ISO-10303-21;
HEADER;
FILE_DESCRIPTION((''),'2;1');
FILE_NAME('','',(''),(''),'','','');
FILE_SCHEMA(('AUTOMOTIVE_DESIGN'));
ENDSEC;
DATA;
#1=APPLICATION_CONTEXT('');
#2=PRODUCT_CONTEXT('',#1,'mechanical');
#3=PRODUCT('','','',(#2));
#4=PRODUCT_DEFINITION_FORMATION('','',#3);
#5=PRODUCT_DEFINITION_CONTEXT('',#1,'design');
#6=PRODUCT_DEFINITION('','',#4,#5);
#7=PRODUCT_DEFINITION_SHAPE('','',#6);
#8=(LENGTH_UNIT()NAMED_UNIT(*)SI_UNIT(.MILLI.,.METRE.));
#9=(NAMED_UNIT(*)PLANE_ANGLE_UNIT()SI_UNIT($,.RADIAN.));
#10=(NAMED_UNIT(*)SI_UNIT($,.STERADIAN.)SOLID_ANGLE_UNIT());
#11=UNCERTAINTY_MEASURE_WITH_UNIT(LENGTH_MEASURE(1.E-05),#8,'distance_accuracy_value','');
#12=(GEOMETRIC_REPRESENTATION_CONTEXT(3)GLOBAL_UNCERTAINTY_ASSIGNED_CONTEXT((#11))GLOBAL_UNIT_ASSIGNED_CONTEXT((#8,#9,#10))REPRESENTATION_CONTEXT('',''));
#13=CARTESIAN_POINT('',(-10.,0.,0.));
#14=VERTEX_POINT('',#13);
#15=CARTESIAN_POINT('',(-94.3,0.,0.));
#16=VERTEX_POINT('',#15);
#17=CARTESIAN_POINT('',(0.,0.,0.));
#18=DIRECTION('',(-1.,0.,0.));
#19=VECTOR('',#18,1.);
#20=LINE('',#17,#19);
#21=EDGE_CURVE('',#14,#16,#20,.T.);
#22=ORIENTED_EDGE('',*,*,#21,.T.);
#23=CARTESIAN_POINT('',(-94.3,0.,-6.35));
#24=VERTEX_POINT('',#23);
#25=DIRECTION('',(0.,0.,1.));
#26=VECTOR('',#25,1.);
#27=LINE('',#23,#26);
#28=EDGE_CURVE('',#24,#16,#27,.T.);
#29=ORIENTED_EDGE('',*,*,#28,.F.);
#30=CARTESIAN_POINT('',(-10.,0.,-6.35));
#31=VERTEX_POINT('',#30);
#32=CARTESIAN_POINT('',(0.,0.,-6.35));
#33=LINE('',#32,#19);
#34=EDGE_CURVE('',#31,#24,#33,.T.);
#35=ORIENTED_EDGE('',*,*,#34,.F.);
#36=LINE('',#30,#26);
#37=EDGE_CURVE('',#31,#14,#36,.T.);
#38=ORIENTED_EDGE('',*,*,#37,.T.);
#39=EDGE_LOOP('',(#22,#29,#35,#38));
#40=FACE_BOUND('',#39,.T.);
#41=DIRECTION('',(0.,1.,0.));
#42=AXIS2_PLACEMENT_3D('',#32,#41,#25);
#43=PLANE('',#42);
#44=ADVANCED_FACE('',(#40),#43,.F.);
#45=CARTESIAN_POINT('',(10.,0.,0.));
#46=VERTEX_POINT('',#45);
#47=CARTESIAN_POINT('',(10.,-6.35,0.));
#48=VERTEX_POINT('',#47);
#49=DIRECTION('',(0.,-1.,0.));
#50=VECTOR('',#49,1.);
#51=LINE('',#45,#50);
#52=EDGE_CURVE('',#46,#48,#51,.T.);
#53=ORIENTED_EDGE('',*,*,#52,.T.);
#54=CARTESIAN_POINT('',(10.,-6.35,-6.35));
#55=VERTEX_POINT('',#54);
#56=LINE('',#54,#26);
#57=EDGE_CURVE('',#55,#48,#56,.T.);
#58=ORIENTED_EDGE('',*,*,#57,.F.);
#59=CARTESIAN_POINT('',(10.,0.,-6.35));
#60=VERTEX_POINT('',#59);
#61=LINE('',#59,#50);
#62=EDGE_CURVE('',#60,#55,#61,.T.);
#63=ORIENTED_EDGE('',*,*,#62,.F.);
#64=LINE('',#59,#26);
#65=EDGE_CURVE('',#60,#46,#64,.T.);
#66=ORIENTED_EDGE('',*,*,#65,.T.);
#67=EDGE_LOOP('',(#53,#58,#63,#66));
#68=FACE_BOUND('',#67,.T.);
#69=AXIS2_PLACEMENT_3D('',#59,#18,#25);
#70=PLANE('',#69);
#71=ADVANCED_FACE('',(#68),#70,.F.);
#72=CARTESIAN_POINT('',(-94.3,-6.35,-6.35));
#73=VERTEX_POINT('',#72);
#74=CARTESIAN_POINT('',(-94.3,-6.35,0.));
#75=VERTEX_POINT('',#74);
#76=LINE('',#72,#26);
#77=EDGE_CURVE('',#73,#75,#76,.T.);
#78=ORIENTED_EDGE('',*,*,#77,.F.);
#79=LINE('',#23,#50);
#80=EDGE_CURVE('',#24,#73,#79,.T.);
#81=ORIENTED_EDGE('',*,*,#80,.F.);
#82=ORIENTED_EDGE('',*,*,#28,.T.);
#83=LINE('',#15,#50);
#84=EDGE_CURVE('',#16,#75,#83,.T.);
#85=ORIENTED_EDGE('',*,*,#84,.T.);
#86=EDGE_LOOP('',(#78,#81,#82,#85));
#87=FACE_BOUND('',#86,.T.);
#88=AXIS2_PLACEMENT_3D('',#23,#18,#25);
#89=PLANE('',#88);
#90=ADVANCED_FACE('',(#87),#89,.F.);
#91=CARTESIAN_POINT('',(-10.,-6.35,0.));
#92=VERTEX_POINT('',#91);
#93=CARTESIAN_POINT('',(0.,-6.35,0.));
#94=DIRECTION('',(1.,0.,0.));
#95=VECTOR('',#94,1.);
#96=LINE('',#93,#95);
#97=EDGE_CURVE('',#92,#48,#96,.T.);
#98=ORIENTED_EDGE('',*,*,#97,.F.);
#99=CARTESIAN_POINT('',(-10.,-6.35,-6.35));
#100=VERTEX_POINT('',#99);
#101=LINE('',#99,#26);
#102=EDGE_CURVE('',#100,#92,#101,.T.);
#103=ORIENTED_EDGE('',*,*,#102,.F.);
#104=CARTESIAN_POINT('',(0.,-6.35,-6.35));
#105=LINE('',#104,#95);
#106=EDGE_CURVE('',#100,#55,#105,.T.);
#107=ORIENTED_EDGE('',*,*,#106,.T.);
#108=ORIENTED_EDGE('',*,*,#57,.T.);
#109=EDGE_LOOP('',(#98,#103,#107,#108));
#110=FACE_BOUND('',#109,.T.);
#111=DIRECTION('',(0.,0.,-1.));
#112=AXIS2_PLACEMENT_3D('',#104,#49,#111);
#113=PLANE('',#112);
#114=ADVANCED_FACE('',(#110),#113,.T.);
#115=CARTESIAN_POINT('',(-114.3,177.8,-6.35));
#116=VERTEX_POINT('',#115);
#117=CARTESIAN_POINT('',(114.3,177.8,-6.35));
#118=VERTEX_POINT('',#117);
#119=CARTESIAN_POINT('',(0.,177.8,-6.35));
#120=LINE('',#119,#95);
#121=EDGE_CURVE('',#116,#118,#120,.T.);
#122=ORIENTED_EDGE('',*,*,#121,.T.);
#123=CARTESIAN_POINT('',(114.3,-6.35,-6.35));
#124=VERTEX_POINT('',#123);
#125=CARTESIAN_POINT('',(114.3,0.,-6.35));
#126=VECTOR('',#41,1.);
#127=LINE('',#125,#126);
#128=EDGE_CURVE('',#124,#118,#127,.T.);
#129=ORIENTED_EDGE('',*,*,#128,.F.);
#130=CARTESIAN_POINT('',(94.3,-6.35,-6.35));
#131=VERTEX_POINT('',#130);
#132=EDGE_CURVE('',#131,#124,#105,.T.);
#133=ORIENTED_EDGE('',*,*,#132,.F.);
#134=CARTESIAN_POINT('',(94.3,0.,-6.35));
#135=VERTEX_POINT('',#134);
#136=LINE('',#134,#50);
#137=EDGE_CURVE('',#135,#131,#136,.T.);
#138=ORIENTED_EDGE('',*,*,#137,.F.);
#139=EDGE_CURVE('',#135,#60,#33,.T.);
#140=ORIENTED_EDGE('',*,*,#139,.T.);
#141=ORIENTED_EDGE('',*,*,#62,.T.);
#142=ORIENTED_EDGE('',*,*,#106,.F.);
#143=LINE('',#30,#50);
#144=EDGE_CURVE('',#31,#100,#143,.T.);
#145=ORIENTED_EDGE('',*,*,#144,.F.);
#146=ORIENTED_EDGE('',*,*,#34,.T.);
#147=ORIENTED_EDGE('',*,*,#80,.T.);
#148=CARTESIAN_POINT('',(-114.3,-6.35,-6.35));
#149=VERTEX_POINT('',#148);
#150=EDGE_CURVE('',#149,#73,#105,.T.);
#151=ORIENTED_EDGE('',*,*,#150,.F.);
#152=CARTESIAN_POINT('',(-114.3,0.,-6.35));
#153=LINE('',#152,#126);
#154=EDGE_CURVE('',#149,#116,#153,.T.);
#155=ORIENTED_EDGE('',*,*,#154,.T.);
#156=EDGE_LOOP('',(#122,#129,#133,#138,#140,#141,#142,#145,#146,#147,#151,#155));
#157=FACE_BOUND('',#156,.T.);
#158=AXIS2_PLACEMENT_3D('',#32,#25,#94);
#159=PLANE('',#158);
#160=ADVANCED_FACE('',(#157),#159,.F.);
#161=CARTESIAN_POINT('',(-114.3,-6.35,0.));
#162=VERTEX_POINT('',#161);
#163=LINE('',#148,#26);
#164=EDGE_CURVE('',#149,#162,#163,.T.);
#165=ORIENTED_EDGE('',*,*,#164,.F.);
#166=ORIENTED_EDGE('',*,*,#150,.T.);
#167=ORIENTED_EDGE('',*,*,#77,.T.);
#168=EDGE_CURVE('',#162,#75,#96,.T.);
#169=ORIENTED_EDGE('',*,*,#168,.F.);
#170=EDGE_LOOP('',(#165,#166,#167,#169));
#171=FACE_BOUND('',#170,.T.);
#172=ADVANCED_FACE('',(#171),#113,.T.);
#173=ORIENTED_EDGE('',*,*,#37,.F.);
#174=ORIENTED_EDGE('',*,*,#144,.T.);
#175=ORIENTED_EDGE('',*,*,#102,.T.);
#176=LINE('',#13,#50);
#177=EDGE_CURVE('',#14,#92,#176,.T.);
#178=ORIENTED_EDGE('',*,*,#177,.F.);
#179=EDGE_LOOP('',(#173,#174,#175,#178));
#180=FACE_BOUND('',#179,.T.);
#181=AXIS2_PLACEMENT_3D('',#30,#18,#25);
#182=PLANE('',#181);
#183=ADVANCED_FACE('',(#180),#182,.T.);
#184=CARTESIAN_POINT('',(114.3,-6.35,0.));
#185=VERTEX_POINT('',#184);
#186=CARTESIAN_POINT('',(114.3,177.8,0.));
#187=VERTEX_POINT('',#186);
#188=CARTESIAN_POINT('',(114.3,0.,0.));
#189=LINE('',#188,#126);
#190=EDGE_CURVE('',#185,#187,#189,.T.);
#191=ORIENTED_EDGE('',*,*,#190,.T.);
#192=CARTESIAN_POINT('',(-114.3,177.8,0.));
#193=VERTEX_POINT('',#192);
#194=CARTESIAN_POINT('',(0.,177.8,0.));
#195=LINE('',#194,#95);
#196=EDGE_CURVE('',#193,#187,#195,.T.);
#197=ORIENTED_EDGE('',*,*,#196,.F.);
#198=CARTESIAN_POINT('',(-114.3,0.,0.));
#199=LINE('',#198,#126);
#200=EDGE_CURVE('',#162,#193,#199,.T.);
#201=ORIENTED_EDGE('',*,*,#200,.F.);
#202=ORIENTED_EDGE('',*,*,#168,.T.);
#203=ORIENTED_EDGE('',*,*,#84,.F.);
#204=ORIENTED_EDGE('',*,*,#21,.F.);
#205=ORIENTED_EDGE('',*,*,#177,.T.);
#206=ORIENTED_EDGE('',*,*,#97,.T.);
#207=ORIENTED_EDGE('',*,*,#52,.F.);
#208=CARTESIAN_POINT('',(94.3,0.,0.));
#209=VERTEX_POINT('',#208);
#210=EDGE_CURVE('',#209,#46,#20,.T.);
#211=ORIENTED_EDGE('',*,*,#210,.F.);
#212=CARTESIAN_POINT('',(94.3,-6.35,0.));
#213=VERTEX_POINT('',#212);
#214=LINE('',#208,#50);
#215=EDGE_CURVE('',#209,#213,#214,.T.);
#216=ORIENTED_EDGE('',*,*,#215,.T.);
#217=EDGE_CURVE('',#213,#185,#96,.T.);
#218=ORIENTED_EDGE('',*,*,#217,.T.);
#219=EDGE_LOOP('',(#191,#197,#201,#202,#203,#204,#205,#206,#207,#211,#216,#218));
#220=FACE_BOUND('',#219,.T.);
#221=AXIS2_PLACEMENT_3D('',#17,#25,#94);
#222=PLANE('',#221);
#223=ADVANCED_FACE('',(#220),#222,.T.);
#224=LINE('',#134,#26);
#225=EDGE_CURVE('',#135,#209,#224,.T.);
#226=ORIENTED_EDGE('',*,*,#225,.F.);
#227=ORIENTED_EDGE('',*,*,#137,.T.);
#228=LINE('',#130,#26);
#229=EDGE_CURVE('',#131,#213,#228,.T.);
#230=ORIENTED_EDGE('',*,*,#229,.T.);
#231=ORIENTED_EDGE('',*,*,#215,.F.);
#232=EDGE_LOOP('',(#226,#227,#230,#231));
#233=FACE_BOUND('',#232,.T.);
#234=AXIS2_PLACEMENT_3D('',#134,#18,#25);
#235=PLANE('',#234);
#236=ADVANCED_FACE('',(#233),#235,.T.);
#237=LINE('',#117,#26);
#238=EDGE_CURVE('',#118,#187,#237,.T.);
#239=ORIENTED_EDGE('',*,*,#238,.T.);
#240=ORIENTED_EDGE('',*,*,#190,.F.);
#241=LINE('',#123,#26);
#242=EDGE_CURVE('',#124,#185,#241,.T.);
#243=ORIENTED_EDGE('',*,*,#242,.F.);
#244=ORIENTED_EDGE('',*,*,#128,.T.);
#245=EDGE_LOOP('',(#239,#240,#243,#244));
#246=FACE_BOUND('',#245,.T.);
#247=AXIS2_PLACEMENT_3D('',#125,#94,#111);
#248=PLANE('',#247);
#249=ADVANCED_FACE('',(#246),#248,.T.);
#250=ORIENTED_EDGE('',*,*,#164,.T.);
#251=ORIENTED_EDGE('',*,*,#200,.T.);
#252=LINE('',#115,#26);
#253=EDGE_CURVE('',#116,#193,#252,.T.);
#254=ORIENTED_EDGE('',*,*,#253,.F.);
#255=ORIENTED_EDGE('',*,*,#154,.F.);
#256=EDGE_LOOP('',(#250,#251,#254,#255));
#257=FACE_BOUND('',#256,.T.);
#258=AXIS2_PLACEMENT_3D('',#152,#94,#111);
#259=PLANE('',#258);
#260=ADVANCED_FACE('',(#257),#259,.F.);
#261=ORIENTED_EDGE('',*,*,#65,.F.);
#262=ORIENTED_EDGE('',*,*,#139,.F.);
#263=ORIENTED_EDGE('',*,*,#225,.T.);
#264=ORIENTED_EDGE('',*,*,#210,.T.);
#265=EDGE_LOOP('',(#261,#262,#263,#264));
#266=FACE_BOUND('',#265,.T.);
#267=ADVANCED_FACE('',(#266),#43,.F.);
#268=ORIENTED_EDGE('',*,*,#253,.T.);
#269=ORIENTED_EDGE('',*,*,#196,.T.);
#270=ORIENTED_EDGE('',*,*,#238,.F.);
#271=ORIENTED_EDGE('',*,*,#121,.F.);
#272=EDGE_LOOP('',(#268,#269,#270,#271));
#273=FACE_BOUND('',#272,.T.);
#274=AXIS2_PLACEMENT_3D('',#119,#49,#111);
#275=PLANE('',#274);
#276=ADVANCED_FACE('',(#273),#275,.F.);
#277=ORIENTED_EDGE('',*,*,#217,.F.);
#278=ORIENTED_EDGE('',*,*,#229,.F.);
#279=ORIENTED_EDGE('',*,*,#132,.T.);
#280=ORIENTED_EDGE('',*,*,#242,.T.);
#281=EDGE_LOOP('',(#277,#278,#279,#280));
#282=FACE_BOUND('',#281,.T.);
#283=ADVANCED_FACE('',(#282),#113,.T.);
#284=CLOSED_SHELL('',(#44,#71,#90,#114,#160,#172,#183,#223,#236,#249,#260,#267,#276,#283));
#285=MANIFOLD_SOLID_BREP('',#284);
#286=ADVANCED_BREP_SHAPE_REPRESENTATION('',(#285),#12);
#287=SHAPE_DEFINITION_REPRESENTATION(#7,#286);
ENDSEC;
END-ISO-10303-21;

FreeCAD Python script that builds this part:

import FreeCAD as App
import Part
import Sketcher

V = App.Vector
Q = App.Units.Quantity

doc = App.newDocument("Part")
params = doc.addObject("Spreadsheet::Sheet", "Params")
for row, (alias, value) in enumerate([
    ("sketch1_width", "9 in"),
    ("sketch1_height", "7.25 in"),
    ("pad1_length", "0.25 in"),
], start=1):
    params.set(f"A{row}", alias)
    params.set(f"B{row}", "=" + value)
    params.setAlias(f"B{row}", alias)

body = doc.addObject("PartDesign::Body", "Body")

# Sketch on XY plane
sketch1 = doc.addObject("Sketcher::SketchObject", "Sketch")
body.addObject(sketch1)
sketch1.AttachmentSupport = (doc.XY_Plane, [""])
sketch1.MapMode = "FlatFace"
sketch1.addGeometry(Part.LineSegment(V(114, -6, 0), V(114, 178, 0)), False)
sketch1.addGeometry(Part.LineSegment(V(114, 178, 0), V(-114, 178, 0)), False)
sketch1.addGeometry(Part.LineSegment(V(-114, 178, 0), V(-114, -6, 0)), False)
sketch1.addGeometry(Part.LineSegment(V(-114, -6, 0), V(-94, -6, 0)), False)
sketch1.addGeometry(Part.LineSegment(V(-94, -6, 0), V(-94, 0, 0)), False)
sketch1.addGeometry(Part.LineSegment(V(-94, 0, 0), V(-10, 0, 0)), False)
sketch1.addGeometry(Part.LineSegment(V(-10, 0, 0), V(-10, -6, 0)), False)
sketch1.addGeometry(Part.LineSegment(V(-10, -6, 0), V(10, -6, 0)), False)
sketch1.addGeometry(Part.LineSegment(V(10, -6, 0), V(10, 0, 0)), False)
sketch1.addGeometry(Part.LineSegment(V(10, 0, 0), V(94, 0, 0)), False)
sketch1.addGeometry(Part.LineSegment(V(94, 0, 0), V(94, -6, 0)), False)
sketch1.addGeometry(Part.LineSegment(V(94, -6, 0), V(114, -6, 0)), False)
sketch1.addConstraint(Sketcher.Constraint("Coincident", 0, 2, 1, 1))
sketch1.addConstraint(Sketcher.Constraint("Coincident", 1, 2, 2, 1))
sketch1.addConstraint(Sketcher.Constraint("Coincident", 2, 2, 3, 1))
sketch1.addConstraint(Sketcher.Constraint("Coincident", 3, 2, 4, 1))
sketch1.addConstraint(Sketcher.Constraint("Coincident", 4, 2, 5, 1))
sketch1.addConstraint(Sketcher.Constraint("Coincident", 5, 2, 6, 1))
sketch1.addConstraint(Sketcher.Constraint("Coincident", 6, 2, 7, 1))
sketch1.addConstraint(Sketcher.Constraint("Coincident", 7, 2, 8, 1))
sketch1.addConstraint(Sketcher.Constraint("Coincident", 8, 2, 9, 1))
sketch1.addConstraint(Sketcher.Constraint("Coincident", 9, 2, 10, 1))
sketch1.addConstraint(Sketcher.Constraint("Coincident", 10, 2, 11, 1))
sketch1.addConstraint(Sketcher.Constraint("Coincident", 11, 2, 0, 1))
sketch1.addConstraint(Sketcher.Constraint("Vertical", 0))
sketch1.addConstraint(Sketcher.Constraint("Horizontal", 1))
sketch1.addConstraint(Sketcher.Constraint("Vertical", 2))
sketch1.addConstraint(Sketcher.Constraint("Horizontal", 3))
sketch1.addConstraint(Sketcher.Constraint("Vertical", 4))
sketch1.addConstraint(Sketcher.Constraint("Horizontal", 5))
sketch1.addConstraint(Sketcher.Constraint("Vertical", 6))
sketch1.addConstraint(Sketcher.Constraint("Horizontal", 7))
sketch1.addConstraint(Sketcher.Constraint("Vertical", 8))
sketch1.addConstraint(Sketcher.Constraint("Horizontal", 9))
sketch1.addConstraint(Sketcher.Constraint("Vertical", 10))
sketch1.addConstraint(Sketcher.Constraint("Horizontal", 11))
sketch1.addConstraint(Sketcher.Constraint("Symmetric", 5, 2, 8, 2, -1, 1))
sketch1.addConstraint(Sketcher.Constraint("Symmetric", 4, 2, 9, 2, -2))
sketch1.addConstraint(Sketcher.Constraint("Symmetric", 2, 2, 11, 2, -2))
sketch1.addConstraint(Sketcher.Constraint("Horizontal", 3, 2, 6, 2))
sketch1.addConstraint(Sketcher.Constraint("Equal", 3, 7))
sketch1.addConstraint(Sketcher.Constraint("DistanceX", 1, 2, 1, 1, Q("9 in")))
sketch1.addConstraint(Sketcher.Constraint("DistanceY", -1, 1, 0, 2, Q("7 in")))
sketch1.addConstraint(Sketcher.Constraint("DistanceY", 0, 1, 0, 2, Q("7.25 in")))
sketch1.addConstraint(Sketcher.Constraint("DistanceX", 3, 1, 3, 2, Q("20 mm")))
sketch1.setExpression("Constraints[29]", "Params.sketch1_width")
sketch1.setExpression("Constraints[31]", "Params.sketch1_height")
pad1 = doc.addObject("PartDesign::Pad", "Pad")
body.addObject(pad1)
pad1.Profile = sketch1
pad1.setExpression("Length", "Params.pad1_length")
pad1.Reversed = True

doc.recompute()
